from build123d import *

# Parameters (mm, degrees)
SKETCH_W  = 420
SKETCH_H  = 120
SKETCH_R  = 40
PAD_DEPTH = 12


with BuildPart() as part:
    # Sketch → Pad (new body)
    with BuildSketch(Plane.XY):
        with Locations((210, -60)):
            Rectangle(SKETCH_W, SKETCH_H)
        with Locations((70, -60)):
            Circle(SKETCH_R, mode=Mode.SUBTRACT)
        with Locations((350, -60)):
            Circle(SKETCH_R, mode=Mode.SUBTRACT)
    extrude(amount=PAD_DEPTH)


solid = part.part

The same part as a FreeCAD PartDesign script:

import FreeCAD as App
import Part
import Sketcher


def add_polygon(sketch, points):
    """Adds a closed chain of lines whose ends are joined by coincident constraints."""
    first, n = sketch.GeometryCount, len(points)
    for a, b in zip(points, points[1:] + points[:1]):
        sketch.addGeometry(Part.LineSegment(App.Vector(*a, 0), App.Vector(*b, 0)), False)
    for i in range(n):
        sketch.addConstraint(Sketcher.Constraint("Coincident", first + i, 2, first + (i + 1) % n, 1))

doc = App.newDocument("Part")
body = doc.addObject("PartDesign::Body", "Body")

sketch1 = body.newObject("Sketcher::SketchObject", "Sketch")
sketch1.AttachmentSupport = (doc.getObject("XY_Plane"), [""])
sketch1.MapMode = "FlatFace"
add_polygon(sketch1, [(0, 0), (0, -120), (420, -120), (420, 0)])
sketch1.addGeometry(Part.Circle(App.Vector(70, -60, 0), App.Vector(0, 0, 1), 40), False)
sketch1.addGeometry(Part.Circle(App.Vector(350, -60, 0), App.Vector(0, 0, 1), 40), False)
sketch1.addConstraint(Sketcher.Constraint("Vertical", 0))
sketch1.addConstraint(Sketcher.Constraint("Horizontal", 1))
sketch1.addConstraint(Sketcher.Constraint("Vertical", 2))
sketch1.addConstraint(Sketcher.Constraint("Horizontal", 3))
sketch1.addConstraint(Sketcher.Constraint("Coincident", 3, 2, -1, 1))
sketch1.addConstraint(Sketcher.Constraint("Equal", 4, 5))
sketch1.addConstraint(Sketcher.Constraint("Horizontal", 4, 3, 5, 3))
sketch1.addConstraint(Sketcher.Constraint("Diameter", 4, 80.0))
sketch1.addConstraint(Sketcher.Constraint("DistanceX", 1, 1, 1, 2, 420.0))
sketch1.addConstraint(Sketcher.Constraint("DistanceY", 0, 2, 0, 1, 120.0))
sketch1.addConstraint(Sketcher.Constraint("DistanceX", -1, 1, 4, 3, 70.0))
sketch1.addConstraint(Sketcher.Constraint("DistanceY", 4, 3, -1, 1, 60.0))
sketch1.addConstraint(Sketcher.Constraint("DistanceX", -1, 1, 5, 3, 350.0))
pad1 = body.newObject("PartDesign::Pad", "Pad")
pad1.Profile = sketch1
pad1.Length = 12

doc.recompute()
